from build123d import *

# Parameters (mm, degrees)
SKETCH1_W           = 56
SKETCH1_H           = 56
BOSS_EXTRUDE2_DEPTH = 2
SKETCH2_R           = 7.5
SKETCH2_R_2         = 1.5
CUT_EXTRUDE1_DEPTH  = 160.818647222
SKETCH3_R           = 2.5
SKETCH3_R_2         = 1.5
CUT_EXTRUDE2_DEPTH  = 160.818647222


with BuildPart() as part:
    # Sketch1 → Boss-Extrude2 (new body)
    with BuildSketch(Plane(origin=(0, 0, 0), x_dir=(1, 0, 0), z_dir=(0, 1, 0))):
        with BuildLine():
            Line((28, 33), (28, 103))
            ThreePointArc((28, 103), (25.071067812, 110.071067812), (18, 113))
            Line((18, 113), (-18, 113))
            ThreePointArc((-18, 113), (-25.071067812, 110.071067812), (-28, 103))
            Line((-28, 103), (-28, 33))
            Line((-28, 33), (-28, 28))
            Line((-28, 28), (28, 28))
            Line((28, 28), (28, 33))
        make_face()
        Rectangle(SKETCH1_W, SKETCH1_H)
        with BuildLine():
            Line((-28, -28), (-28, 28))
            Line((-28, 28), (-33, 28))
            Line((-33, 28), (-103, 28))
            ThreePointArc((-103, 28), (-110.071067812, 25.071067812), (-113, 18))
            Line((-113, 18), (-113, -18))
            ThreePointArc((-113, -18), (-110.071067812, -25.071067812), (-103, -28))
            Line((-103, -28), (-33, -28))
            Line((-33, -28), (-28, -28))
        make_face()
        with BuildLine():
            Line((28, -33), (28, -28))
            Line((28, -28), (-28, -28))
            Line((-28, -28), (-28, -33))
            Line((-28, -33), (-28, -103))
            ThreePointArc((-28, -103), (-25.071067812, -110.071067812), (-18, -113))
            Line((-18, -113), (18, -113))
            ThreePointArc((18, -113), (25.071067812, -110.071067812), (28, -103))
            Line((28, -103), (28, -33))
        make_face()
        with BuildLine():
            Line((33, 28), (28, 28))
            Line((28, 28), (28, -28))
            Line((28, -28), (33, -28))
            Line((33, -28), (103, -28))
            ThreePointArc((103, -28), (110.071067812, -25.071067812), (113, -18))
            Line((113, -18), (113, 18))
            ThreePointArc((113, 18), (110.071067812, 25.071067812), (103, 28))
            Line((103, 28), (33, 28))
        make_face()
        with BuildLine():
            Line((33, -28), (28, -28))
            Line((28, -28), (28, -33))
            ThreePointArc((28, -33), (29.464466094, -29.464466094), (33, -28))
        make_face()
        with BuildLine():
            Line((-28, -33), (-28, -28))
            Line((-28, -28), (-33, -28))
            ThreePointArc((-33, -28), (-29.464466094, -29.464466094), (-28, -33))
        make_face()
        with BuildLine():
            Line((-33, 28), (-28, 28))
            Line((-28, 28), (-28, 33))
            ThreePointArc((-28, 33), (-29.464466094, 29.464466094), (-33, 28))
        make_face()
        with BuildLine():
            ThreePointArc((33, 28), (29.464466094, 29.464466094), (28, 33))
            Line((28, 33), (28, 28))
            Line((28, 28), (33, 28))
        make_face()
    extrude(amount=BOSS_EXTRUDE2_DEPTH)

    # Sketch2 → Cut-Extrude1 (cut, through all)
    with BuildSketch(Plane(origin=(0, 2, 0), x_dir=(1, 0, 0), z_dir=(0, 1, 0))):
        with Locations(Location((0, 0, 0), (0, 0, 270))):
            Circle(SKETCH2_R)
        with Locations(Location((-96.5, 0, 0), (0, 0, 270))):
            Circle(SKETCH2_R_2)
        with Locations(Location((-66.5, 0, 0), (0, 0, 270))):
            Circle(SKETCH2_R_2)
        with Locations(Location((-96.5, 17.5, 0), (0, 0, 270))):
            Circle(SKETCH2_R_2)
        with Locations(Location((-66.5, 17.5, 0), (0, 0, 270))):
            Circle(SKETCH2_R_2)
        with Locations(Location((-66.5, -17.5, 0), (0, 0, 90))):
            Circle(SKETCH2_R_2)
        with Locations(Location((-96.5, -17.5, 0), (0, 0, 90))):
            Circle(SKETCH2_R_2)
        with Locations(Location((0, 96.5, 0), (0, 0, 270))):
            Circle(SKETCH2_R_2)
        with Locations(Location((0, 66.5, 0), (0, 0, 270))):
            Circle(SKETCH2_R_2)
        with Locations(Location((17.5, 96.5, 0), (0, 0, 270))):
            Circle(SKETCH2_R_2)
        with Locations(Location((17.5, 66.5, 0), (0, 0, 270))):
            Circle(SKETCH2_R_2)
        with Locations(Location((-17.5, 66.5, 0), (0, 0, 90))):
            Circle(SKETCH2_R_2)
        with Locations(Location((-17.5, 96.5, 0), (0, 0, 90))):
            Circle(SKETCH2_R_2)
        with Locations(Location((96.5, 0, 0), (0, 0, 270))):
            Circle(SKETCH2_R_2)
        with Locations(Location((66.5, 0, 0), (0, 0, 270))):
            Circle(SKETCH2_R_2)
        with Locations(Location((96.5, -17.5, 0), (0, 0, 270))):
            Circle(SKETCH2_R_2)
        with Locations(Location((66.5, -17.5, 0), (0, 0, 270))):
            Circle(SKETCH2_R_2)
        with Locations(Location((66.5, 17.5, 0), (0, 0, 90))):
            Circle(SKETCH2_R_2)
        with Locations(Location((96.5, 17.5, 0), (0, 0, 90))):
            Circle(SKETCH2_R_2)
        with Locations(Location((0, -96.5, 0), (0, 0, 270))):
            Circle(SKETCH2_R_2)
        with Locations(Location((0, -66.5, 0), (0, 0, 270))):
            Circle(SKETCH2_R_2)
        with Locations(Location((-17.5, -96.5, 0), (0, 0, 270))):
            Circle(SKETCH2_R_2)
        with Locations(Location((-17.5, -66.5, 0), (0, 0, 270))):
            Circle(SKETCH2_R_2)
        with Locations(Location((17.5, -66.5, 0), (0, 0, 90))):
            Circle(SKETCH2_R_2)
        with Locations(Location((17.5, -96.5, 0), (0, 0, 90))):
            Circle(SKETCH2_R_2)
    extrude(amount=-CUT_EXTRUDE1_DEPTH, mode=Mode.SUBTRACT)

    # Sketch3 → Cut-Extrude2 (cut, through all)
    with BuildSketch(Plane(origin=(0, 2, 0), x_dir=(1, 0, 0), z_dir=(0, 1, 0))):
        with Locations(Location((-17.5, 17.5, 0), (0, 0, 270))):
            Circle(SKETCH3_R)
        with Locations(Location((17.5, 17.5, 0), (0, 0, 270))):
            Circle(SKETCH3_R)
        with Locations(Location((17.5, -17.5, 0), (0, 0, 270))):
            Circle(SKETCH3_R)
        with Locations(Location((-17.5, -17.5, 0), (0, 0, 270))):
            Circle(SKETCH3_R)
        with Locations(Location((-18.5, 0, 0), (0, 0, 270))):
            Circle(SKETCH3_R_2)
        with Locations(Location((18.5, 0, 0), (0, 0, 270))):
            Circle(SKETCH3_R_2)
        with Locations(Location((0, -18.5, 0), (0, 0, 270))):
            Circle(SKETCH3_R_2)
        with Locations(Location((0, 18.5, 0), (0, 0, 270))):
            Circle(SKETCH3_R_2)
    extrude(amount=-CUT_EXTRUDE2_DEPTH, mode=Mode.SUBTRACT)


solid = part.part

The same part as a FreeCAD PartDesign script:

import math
import FreeCAD as App
import Part
import Sketcher

V = App.Vector
Q = App.Units.Quantity

doc = App.newDocument("Part")
body = doc.addObject("PartDesign::Body", "Body")

# Sketch on XZ plane
sketch1 = body.newObject("Sketcher::SketchObject", "Sketch")
sketch1.AttachmentSupport = (doc.getObject("XZ_Plane"), [""])
sketch1.MapMode = "FlatFace"
sketch1.addGeometry(Part.ArcOfCircle(Part.Circle(V(18, -103, 0), V(0, 0, 1), 10), math.radians(-90), math.radians(0)), False)
sketch1.addGeometry(Part.LineSegment(V(18, -113, 0), V(-18, -113, 0)), False)
sketch1.addGeometry(Part.ArcOfCircle(Part.Circle(V(-18, -103, 0), V(0, 0, 1), 10), math.radians(180), math.radians(270)), False)
sketch1.addGeometry(Part.LineSegment(V(-28, -103, 0), V(-28, -33, 0)), False)
sketch1.addGeometry(Part.ArcOfCircle(Part.Circle(V(-33, -33, 0), V(0, 0, 1), 5), math.radians(0), math.radians(90)), False)
sketch1.addGeometry(Part.LineSegment(V(-33, -28, 0), V(-103, -28, 0)), False)
sketch1.addGeometry(Part.ArcOfCircle(Part.Circle(V(-103, -18, 0), V(0, 0, 1), 10), math.radians(180), math.radians(270)), False)
sketch1.addGeometry(Part.LineSegment(V(-113, -18, 0), V(-113, 18, 0)), False)
sketch1.addGeometry(Part.ArcOfCircle(Part.Circle(V(-103, 18, 0), V(0, 0, 1), 10), math.radians(90), math.radians(180)), False)
sketch1.addGeometry(Part.LineSegment(V(-103, 28, 0), V(-33, 28, 0)), False)
sketch1.addGeometry(Part.ArcOfCircle(Part.Circle(V(-33, 33, 0), V(0, 0, 1), 5), math.radians(-90), math.radians(0)), False)
sketch1.addGeometry(Part.LineSegment(V(-28, 33, 0), V(-28, 103, 0)), False)
sketch1.addGeometry(Part.ArcOfCircle(Part.Circle(V(-18, 103, 0), V(0, 0, 1), 10), math.radians(90), math.radians(180)), False)
sketch1.addGeometry(Part.LineSegment(V(-18, 113, 0), V(18, 113, 0)), False)
sketch1.addGeometry(Part.ArcOfCircle(Part.Circle(V(18, 103, 0), V(0, 0, 1), 10), math.radians(0), math.radians(90)), False)
sketch1.addGeometry(Part.LineSegment(V(28, 103, 0), V(28, 33, 0)), False)
sketch1.addGeometry(Part.ArcOfCircle(Part.Circle(V(33, 33, 0), V(0, 0, 1), 5), math.radians(180), math.radians(270)), False)
sketch1.addGeometry(Part.LineSegment(V(33, 28, 0), V(103, 28, 0)), False)
sketch1.addGeometry(Part.ArcOfCircle(Part.Circle(V(103, 18, 0), V(0, 0, 1), 10), math.radians(0), math.radians(90)), False)
sketch1.addGeometry(Part.LineSegment(V(113, 18, 0), V(113, -18, 0)), False)
sketch1.addGeometry(Part.ArcOfCircle(Part.Circle(V(103, -18, 0), V(0, 0, 1), 10), math.radians(-90), math.radians(0)), False)
sketch1.addGeometry(Part.LineSegment(V(103, -28, 0), V(33, -28, 0)), False)
sketch1.addGeometry(Part.ArcOfCircle(Part.Circle(V(33, -33, 0), V(0, 0, 1), 5), math.radians(90), math.radians(180)), False)
sketch1.addGeometry(Part.LineSegment(V(28, -33, 0), V(28, -103, 0)), False)
sketch1.addConstraint(Sketcher.Constraint("Tangent", 0, 1, 1, 1))
sketch1.addConstraint(Sketcher.Constraint("Tangent", 1, 2, 2, 2))
sketch1.addConstraint(Sketcher.Constraint("Tangent", 2, 1, 3, 1))
sketch1.addConstraint(Sketcher.Constraint("Tangent", 3, 2, 4, 1))
sketch1.addConstraint(Sketcher.Constraint("Tangent", 4, 2, 5, 1))
sketch1.addConstraint(Sketcher.Constraint("Tangent", 5, 2, 6, 2))
sketch1.addConstraint(Sketcher.Constraint("Tangent", 6, 1, 7, 1))
sketch1.addConstraint(Sketcher.Constraint("Tangent", 7, 2, 8, 2))
sketch1.addConstraint(Sketcher.Constraint("Tangent", 8, 1, 9, 1))
sketch1.addConstraint(Sketcher.Constraint("Tangent", 9, 2, 10, 1))
sketch1.addConstraint(Sketcher.Constraint("Tangent", 10, 2, 11, 1))
sketch1.addConstraint(Sketcher.Constraint("Tangent", 11, 2, 12, 2))
sketch1.addConstraint(Sketcher.Constraint("Tangent", 12, 1, 13, 1))
sketch1.addConstraint(Sketcher.Constraint("Tangent", 13, 2, 14, 2))
sketch1.addConstraint(Sketcher.Constraint("Tangent", 14, 1, 15, 1))
sketch1.addConstraint(Sketcher.Constraint("Tangent", 15, 2, 16, 1))
sketch1.addConstraint(Sketcher.Constraint("Tangent", 16, 2, 17, 1))
sketch1.addConstraint(Sketcher.Constraint("Tangent", 17, 2, 18, 2))
sketch1.addConstraint(Sketcher.Constraint("Tangent", 18, 1, 19, 1))
sketch1.addConstraint(Sketcher.Constraint("Tangent", 19, 2, 20, 2))
sketch1.addConstraint(Sketcher.Constraint("Tangent", 20, 1, 21, 1))
sketch1.addConstraint(Sketcher.Constraint("Tangent", 21, 2, 22, 1))
sketch1.addConstraint(Sketcher.Constraint("Tangent", 22, 2, 23, 1))
sketch1.addConstraint(Sketcher.Constraint("Tangent", 23, 2, 0, 2))
sketch1.addConstraint(Sketcher.Constraint("Horizontal", 1))
sketch1.addConstraint(Sketcher.Constraint("Vertical", 3))
sketch1.addConstraint(Sketcher.Constraint("Horizontal", 5))
sketch1.addConstraint(Sketcher.Constraint("Vertical", 7))
sketch1.addConstraint(Sketcher.Constraint("Horizontal", 9))
sketch1.addConstraint(Sketcher.Constraint("Vertical", 11))
sketch1.addConstraint(Sketcher.Constraint("Horizontal", 13))
sketch1.addConstraint(Sketcher.Constraint("Vertical", 15))
sketch1.addConstraint(Sketcher.Constraint("Horizontal", 17))
sketch1.addConstraint(Sketcher.Constraint("Vertical", 19))
sketch1.addConstraint(Sketcher.Constraint("Horizontal", 21))
sketch1.addConstraint(Sketcher.Constraint("Vertical", 23))
sketch1.addConstraint(Sketcher.Constraint("Equal", 0, 2))
sketch1.addConstraint(Sketcher.Constraint("Equal", 2, 6))
sketch1.addConstraint(Sketcher.Constraint("Equal", 6, 8))
sketch1.addConstraint(Sketcher.Constraint("Equal", 4, 10))
sketch1.addConstraint(Sketcher.Constraint("Equal", 8, 12))
sketch1.addConstraint(Sketcher.Constraint("Equal", 12, 14))
sketch1.addConstraint(Sketcher.Constraint("Equal", 10, 16))
sketch1.addConstraint(Sketcher.Constraint("Equal", 14, 18))
sketch1.addConstraint(Sketcher.Constraint("Equal", 18, 20))
sketch1.addConstraint(Sketcher.Constraint("Equal", 16, 22))
sketch1.addConstraint(Sketcher.Constraint("Symmetric", 0, 3, 12, 3, -1, 1))
sketch1.addConstraint(Sketcher.Constraint("Symmetric", 4, 3, 16, 3, -1, 1))
sketch1.addConstraint(Sketcher.Constraint("Symmetric", 8, 3, 20, 3, -1, 1))
sketch1.addConstraint(Sketcher.Constraint("Symmetric", 10, 3, 16, 3, -2))
sketch1.addConstraint(Sketcher.Constraint("Equal", 21, 3))
sketch1.addConstraint(Sketcher.Constraint("Equal", 13, 7))
sketch1.addConstraint(Sketcher.Constraint("Radius", 0, Q("10 mm")))
sketch1.addConstraint(Sketcher.Constraint("Radius", 4, Q("5 mm")))
sketch1.addConstraint(Sketcher.Constraint("DistanceX", 1, 2, 1, 1, Q("36 mm")))
sketch1.addConstraint(Sketcher.Constraint("DistanceX", 5, 2, 5, 1, Q("70 mm")))
pad1 = body.newObject("PartDesign::Pad", "Pad")
pad1.Profile = sketch1
pad1.Length = 2
pad1.Reversed = True

# Sketch on XZ plane
sketch2 = body.newObject("Sketcher::SketchObject", "Sketch001")
sketch2.AttachmentSupport = (doc.getObject("XZ_Plane"), [""])
sketch2.MapMode = "FlatFace"
sketch2.AttachmentOffset = App.Placement(V(0, 0, -2), App.Rotation())
sketch2.addGeometry(Part.Circle(V(0, 0, 0), V(0, 0, 1), 7.5), False)
sketch2.addGeometry(Part.Circle(V(-96.5, 0, 0), V(0, 0, 1), 1.5), False)
sketch2.addGeometry(Part.Circle(V(-66.5, 0, 0), V(0, 0, 1), 1.5), False)
sketch2.addGeometry(Part.Circle(V(-96.5, -17.5, 0), V(0, 0, 1), 1.5), False)
sketch2.addGeometry(Part.Circle(V(-66.5, -17.5, 0), V(0, 0, 1), 1.5), False)
sketch2.addGeometry(Part.Circle(V(-66.5, 17.5, 0), V(0, 0, 1), 1.5), False)
sketch2.addGeometry(Part.Circle(V(-96.5, 17.5, 0), V(0, 0, 1), 1.5), False)
sketch2.addGeometry(Part.Circle(V(0, -96.5, 0), V(0, 0, 1), 1.5), False)
sketch2.addGeometry(Part.Circle(V(0, -66.5, 0), V(0, 0, 1), 1.5), False)
sketch2.addGeometry(Part.Circle(V(17.5, -96.5, 0), V(0, 0, 1), 1.5), False)
sketch2.addGeometry(Part.Circle(V(17.5, -66.5, 0), V(0, 0, 1), 1.5), False)
sketch2.addGeometry(Part.Circle(V(-17.5, -66.5, 0), V(0, 0, 1), 1.5), False)
sketch2.addGeometry(Part.Circle(V(-17.5, -96.5, 0), V(0, 0, 1), 1.5), False)
sketch2.addGeometry(Part.Circle(V(96.5, 0, 0), V(0, 0, 1), 1.5), False)
sketch2.addGeometry(Part.Circle(V(66.5, 0, 0), V(0, 0, 1), 1.5), False)
sketch2.addGeometry(Part.Circle(V(96.5, 17.5, 0), V(0, 0, 1), 1.5), False)
sketch2.addGeometry(Part.Circle(V(66.5, 17.5, 0), V(0, 0, 1), 1.5), False)
sketch2.addGeometry(Part.Circle(V(66.5, -17.5, 0), V(0, 0, 1), 1.5), False)
sketch2.addGeometry(Part.Circle(V(96.5, -17.5, 0), V(0, 0, 1), 1.5), False)
sketch2.addGeometry(Part.Circle(V(0, 96.5, 0), V(0, 0, 1), 1.5), False)
sketch2.addGeometry(Part.Circle(V(0, 66.5, 0), V(0, 0, 1), 1.5), False)
sketch2.addGeometry(Part.Circle(V(-17.5, 96.5, 0), V(0, 0, 1), 1.5), False)
sketch2.addGeometry(Part.Circle(V(-17.5, 66.5, 0), V(0, 0, 1), 1.5), False)
sketch2.addGeometry(Part.Circle(V(17.5, 66.5, 0), V(0, 0, 1), 1.5), False)
sketch2.addGeometry(Part.Circle(V(17.5, 96.5, 0), V(0, 0, 1), 1.5), False)
sketch2.addConstraint(Sketcher.Constraint("Coincident", 0, 3, -1, 1))
sketch2.addConstraint(Sketcher.Constraint("Equal", 1, 2))
sketch2.addConstraint(Sketcher.Constraint("Equal", 2, 3))
sketch2.addConstraint(Sketcher.Constraint("Equal", 3, 4))
sketch2.addConstraint(Sketcher.Constraint("Equal", 4, 5))
sketch2.addConstraint(Sketcher.Constraint("Equal", 5, 6))
sketch2.addConstraint(Sketcher.Constraint("Equal", 6, 7))
sketch2.addConstraint(Sketcher.Constraint("Equal", 7, 8))
sketch2.addConstraint(Sketcher.Constraint("Equal", 8, 9))
sketch2.addConstraint(Sketcher.Constraint("Equal", 9, 10))
sketch2.addConstraint(Sketcher.Constraint("Equal", 10, 11))
sketch2.addConstraint(Sketcher.Constraint("Equal", 11, 12))
sketch2.addConstraint(Sketcher.Constraint("Equal", 12, 13))
sketch2.addConstraint(Sketcher.Constraint("Equal", 13, 14))
sketch2.addConstraint(Sketcher.Constraint("Equal", 14, 15))
sketch2.addConstraint(Sketcher.Constraint("Equal", 15, 16))
sketch2.addConstraint(Sketcher.Constraint("Equal", 16, 17))
sketch2.addConstraint(Sketcher.Constraint("Equal", 17, 18))
sketch2.addConstraint(Sketcher.Constraint("Equal", 18, 19))
sketch2.addConstraint(Sketcher.Constraint("Equal", 19, 20))
sketch2.addConstraint(Sketcher.Constraint("Equal", 20, 21))
sketch2.addConstraint(Sketcher.Constraint("Equal", 21, 22))
sketch2.addConstraint(Sketcher.Constraint("Equal", 22, 23))
sketch2.addConstraint(Sketcher.Constraint("Equal", 23, 24))
sketch2.addConstraint(Sketcher.Constraint("Symmetric", 1, 3, 13, 3, -1, 1))
sketch2.addConstraint(Sketcher.Constraint("Symmetric", 2, 3, 14, 3, -1, 1))
sketch2.addConstraint(Sketcher.Constraint("Symmetric", 3, 3, 15, 3, -1, 1))
sketch2.addConstraint(Sketcher.Constraint("Symmetric", 4, 3, 16, 3, -1, 1))
sketch2.addConstraint(Sketcher.Constraint("Symmetric", 5, 3, 17, 3, -1, 1))
sketch2.addConstraint(Sketcher.Constraint("Symmetric", 6, 3, 18, 3, -1, 1))
sketch2.addConstraint(Sketcher.Constraint("Symmetric", 7, 3, 19, 3, -1, 1))
sketch2.addConstraint(Sketcher.Constraint("Symmetric", 8, 3, 20, 3, -1, 1))
sketch2.addConstraint(Sketcher.Constraint("Symmetric", 9, 3, 21, 3, -1, 1))
sketch2.addConstraint(Sketcher.Constraint("Symmetric", 10, 3, 22, 3, -1, 1))
sketch2.addConstraint(Sketcher.Constraint("Symmetric", 11, 3, 23, 3, -1, 1))
sketch2.addConstraint(Sketcher.Constraint("Symmetric", 12, 3, 24, 3, -1, 1))
sketch2.addConstraint(Sketcher.Constraint("Symmetric", 10, 3, 11, 3, -2))
sketch2.addConstraint(Sketcher.Constraint("Symmetric", 9, 3, 12, 3, -2))
sketch2.addConstraint(Sketcher.Constraint("Symmetric", 6, 3, 15, 3, -2))
sketch2.addConstraint(Sketcher.Constraint("Symmetric", 5, 3, 16, 3, -2))
sketch2.addConstraint(Sketcher.Constraint("PointOnObject", 1, 3, -1))
sketch2.addConstraint(Sketcher.Constraint("PointOnObject", 2, 3, -1))
sketch2.addConstraint(Sketcher.Constraint("PointOnObject", 7, 3, -2))
sketch2.addConstraint(Sketcher.Constraint("PointOnObject", 8, 3, -2))
sketch2.addConstraint(Sketcher.Constraint("Horizontal", 3, 3, 4, 3))
sketch2.addConstraint(Sketcher.Constraint("Horizontal", 7, 3, 9, 3))
sketch2.addConstraint(Sketcher.Constraint("Horizontal", 8, 3, 10, 3))
sketch2.addConstraint(Sketcher.Constraint("Vertical", 1, 3, 3, 3))
sketch2.addConstraint(Sketcher.Constraint("Vertical", 2, 3, 4, 3))
sketch2.addConstraint(Sketcher.Constraint("Vertical", 9, 3, 10, 3))
sketch2.addConstraint(Sketcher.Constraint("Diameter", 0, Q("15 mm")))
sketch2.addConstraint(Sketcher.Constraint("Diameter", 1, Q("3 mm")))
sketch2.addConstraint(Sketcher.Constraint("DistanceX", 1, 3, 2, 3, Q("30 mm")))
sketch2.addConstraint(Sketcher.Constraint("DistanceY", 4, 3, 5, 3, Q("35 mm")))
sketch2.addConstraint(Sketcher.Constraint("DistanceY", 7, 3, 4, 3, Q("79 mm")))
sketch2.addConstraint(Sketcher.Constraint("DistanceY", 7, 3, 8, 3, Q("30 mm")))
sketch2.addConstraint(Sketcher.Constraint("DistanceX", 4, 3, 9, 3, Q("84 mm")))
sketch2.addConstraint(Sketcher.Constraint("DistanceX", 11, 3, 10, 3, Q("35 mm")))
pocket1 = body.newObject("PartDesign::Pocket", "Pocket")
pocket1.Profile = sketch2
pocket1.Type = "ThroughAll"
pocket1.Reversed = True

# Sketch on XZ plane
sketch3 = body.newObject("Sketcher::SketchObject", "Sketch002")
sketch3.AttachmentSupport = (doc.getObject("XZ_Plane"), [""])
sketch3.MapMode = "FlatFace"
sketch3.AttachmentOffset = App.Placement(V(0, 0, -2), App.Rotation())
sketch3.addGeometry(Part.Circle(V(-17.5, -17.5, 0), V(0, 0, 1), 2.5), False)
sketch3.addGeometry(Part.Circle(V(17.5, -17.5, 0), V(0, 0, 1), 2.5), False)
sketch3.addGeometry(Part.Circle(V(17.5, 17.5, 0), V(0, 0, 1), 2.5), False)
sketch3.addGeometry(Part.Circle(V(-17.5, 17.5, 0), V(0, 0, 1), 2.5), False)
sketch3.addGeometry(Part.Circle(V(-18.5, 0, 0), V(0, 0, 1), 1.5), False)
sketch3.addGeometry(Part.Circle(V(18.5, 0, 0), V(0, 0, 1), 1.5), False)
sketch3.addGeometry(Part.Circle(V(0, 18.5, 0), V(0, 0, 1), 1.5), False)
sketch3.addGeometry(Part.Circle(V(0, -18.5, 0), V(0, 0, 1), 1.5), False)
sketch3.addConstraint(Sketcher.Constraint("Equal", 0, 1))
sketch3.addConstraint(Sketcher.Constraint("Equal", 1, 2))
sketch3.addConstraint(Sketcher.Constraint("Equal", 2, 3))
sketch3.addConstraint(Sketcher.Constraint("Equal", 4, 5))
sketch3.addConstraint(Sketcher.Constraint("Equal", 5, 6))
sketch3.addConstraint(Sketcher.Constraint("Equal", 6, 7))
sketch3.addConstraint(Sketcher.Constraint("Symmetric", 0, 3, 2, 3, -1, 1))
sketch3.addConstraint(Sketcher.Constraint("Symmetric", 1, 3, 3, 3, -1, 1))
sketch3.addConstraint(Sketcher.Constraint("Symmetric", 4, 3, 5, 3, -1, 1))
sketch3.addConstraint(Sketcher.Constraint("Symmetric", 6, 3, 7, 3, -1, 1))
sketch3.addConstraint(Sketcher.Constraint("Symmetric", 0, 3, 1, 3, -2))
sketch3.addConstraint(Sketcher.Constraint("PointOnObject", 4, 3, -1))
sketch3.addConstraint(Sketcher.Constraint("PointOnObject", 6, 3, -2))
sketch3.addConstraint(Sketcher.Constraint("Diameter", 0, Q("5 mm")))
sketch3.addConstraint(Sketcher.Constraint("Diameter", 4, Q("3 mm")))
sketch3.addConstraint(Sketcher.Constraint("DistanceX", 0, 3, 1, 3, Q("35 mm")))
sketch3.addConstraint(Sketcher.Constraint("DistanceY", 1, 3, 2, 3, Q("35 mm")))
sketch3.addConstraint(Sketcher.Constraint("DistanceX", 4, 3, 0, 3, Q("1 mm")))
sketch3.addConstraint(Sketcher.Constraint("DistanceY", 2, 3, 6, 3, Q("1 mm")))
pocket2 = body.newObject("PartDesign::Pocket", "Pocket001")
pocket2.Profile = sketch3
pocket2.Type = "ThroughAll"
pocket2.Reversed = True

doc.recompute()
